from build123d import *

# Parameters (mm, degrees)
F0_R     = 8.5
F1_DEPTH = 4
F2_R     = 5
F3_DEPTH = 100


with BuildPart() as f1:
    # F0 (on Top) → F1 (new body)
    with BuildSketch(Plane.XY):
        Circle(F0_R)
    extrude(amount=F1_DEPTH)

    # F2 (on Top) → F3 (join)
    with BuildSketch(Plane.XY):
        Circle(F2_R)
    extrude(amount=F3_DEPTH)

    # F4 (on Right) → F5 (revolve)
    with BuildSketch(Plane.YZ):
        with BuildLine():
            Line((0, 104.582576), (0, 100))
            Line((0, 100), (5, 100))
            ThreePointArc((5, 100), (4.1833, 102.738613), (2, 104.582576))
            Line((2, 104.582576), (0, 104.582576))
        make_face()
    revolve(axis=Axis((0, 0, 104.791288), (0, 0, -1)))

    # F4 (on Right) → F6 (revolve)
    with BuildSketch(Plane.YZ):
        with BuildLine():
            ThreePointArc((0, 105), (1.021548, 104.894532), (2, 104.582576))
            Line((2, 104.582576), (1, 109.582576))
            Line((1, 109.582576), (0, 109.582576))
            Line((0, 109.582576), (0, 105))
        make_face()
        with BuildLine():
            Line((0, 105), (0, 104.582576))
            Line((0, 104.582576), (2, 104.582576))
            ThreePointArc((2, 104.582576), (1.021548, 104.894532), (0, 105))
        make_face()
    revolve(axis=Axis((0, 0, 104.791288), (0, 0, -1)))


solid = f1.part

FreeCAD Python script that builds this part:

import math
import FreeCAD as App
import Part
import Sketcher

V = App.Vector

doc = App.newDocument("Part")
body = doc.addObject("PartDesign::Body", "Body")

sketch1 = body.newObject("Sketcher::SketchObject", "Sketch")
sketch1.AttachmentSupport = (doc.getObject("XY_Plane"), [""])
sketch1.MapMode = "FlatFace"
sketch1.addGeometry(Part.Circle(V(0, 0, 0), V(0, 0, 1), 8), False)
sketch1.addConstraint([
    Sketcher.Constraint("Coincident", 0, 3, -1, 1),
    Sketcher.Constraint("Diameter", 0, 17.0),
])
pad1 = body.newObject("PartDesign::Pad", "Pad")
pad1.Profile = sketch1
pad1.Length = 4

sketch2 = body.newObject("Sketcher::SketchObject", "Sketch001")
sketch2.AttachmentSupport = (doc.getObject("XY_Plane"), [""])
sketch2.MapMode = "FlatFace"
sketch2.addGeometry(Part.Circle(V(0, 0, 0), V(0, 0, 1), 5), False)
sketch2.addConstraint([
    Sketcher.Constraint("Coincident", 0, 3, -1, 1),
    Sketcher.Constraint("Diameter", 0, 10.0),
])
pad2 = body.newObject("PartDesign::Pad", "Pad001")
pad2.Profile = sketch2
pad2.Length = 100

sketch3 = body.newObject("Sketcher::SketchObject", "Sketch002")
sketch3.AttachmentSupport = (doc.getObject("YZ_Plane"), [""])
sketch3.MapMode = "FlatFace"
sketch3.addGeometry([
    Part.LineSegment(V(0, 104.6, 0), V(0, 100, 0)),
    Part.LineSegment(V(0, 100, 0), V(5, 100, 0)),
    Part.ArcOfCircle(Part.Circle(V(0, 100, 0), V(0, 0, 1), 5), math.radians(0), math.radians(66)),
    Part.LineSegment(V(2, 104.6, 0), V(0, 104.6, 0)),
], False)
sketch3.addConstraint([
    Sketcher.Constraint("Coincident", 0, 2, 1, 1),
    Sketcher.Constraint("Coincident", 1, 2, 2, 1),
    Sketcher.Constraint("Coincident", 2, 2, 3, 1),
    Sketcher.Constraint("Coincident", 3, 2, 0, 1),
    Sketcher.Constraint("Vertical", 0),
    Sketcher.Constraint("Horizontal", 1),
    Sketcher.Constraint("Horizontal", 3),
    Sketcher.Constraint("Coincident", 0, 2, 2, 3),
    Sketcher.Constraint("PointOnObject", 2, 3, -2),
    Sketcher.Constraint("Radius", 2, 5.000001),
    Sketcher.Constraint("DistanceX", 3, 2, 3, 1, 2.0),
    Sketcher.Constraint("DistanceY", -1, 1, 2, 3, 100.0),
])
revolution = body.newObject("PartDesign::Revolution", "Revolution")
revolution.Profile = sketch3
revolution.ReferenceAxis = (sketch3, ["V_Axis"])
revolution.Angle = 360

sketch4 = body.newObject("Sketcher::SketchObject", "Sketch003")
sketch4.AttachmentSupport = (doc.getObject("YZ_Plane"), [""])
sketch4.MapMode = "FlatFace"
sketch4.addGeometry([
    Part.LineSegment(V(2, 104.6, 0), V(1, 109.6, 0)),
    Part.LineSegment(V(1, 109.6, 0), V(0, 109.6, 0)),
    Part.LineSegment(V(0, 109.6, 0), V(0, 104.6, 0)),
    Part.LineSegment(V(0, 104.6, 0), V(2, 104.6, 0)),
], False)
sketch4.addConstraint([
    Sketcher.Constraint("Coincident", 0, 2, 1, 1),
    Sketcher.Constraint("Coincident", 1, 2, 2, 1),
    Sketcher.Constraint("Coincident", 2, 2, 3, 1),
    Sketcher.Constraint("Coincident", 3, 2, 0, 1),
    Sketcher.Constraint("Horizontal", 1),
    Sketcher.Constraint("Vertical", 2),
    Sketcher.Constraint("Horizontal", 3),
    Sketcher.Constraint("PointOnObject", 1, 2, -2),
    Sketcher.Constraint("DistanceX", 1, 2, 1, 1, 1.0),
    Sketcher.Constraint("DistanceX", 3, 1, 3, 2, 2.0),
    Sketcher.Constraint("DistanceY", 2, 2, 2, 1, 5.0),
    Sketcher.Constraint("DistanceY", -1, 1, 0, 2, 109.582576),
])
revolution2 = body.newObject("PartDesign::Revolution", "Revolution001")
revolution2.Profile = sketch4
revolution2.ReferenceAxis = (sketch4, ["V_Axis"])
revolution2.Angle = 360

doc.recompute()
